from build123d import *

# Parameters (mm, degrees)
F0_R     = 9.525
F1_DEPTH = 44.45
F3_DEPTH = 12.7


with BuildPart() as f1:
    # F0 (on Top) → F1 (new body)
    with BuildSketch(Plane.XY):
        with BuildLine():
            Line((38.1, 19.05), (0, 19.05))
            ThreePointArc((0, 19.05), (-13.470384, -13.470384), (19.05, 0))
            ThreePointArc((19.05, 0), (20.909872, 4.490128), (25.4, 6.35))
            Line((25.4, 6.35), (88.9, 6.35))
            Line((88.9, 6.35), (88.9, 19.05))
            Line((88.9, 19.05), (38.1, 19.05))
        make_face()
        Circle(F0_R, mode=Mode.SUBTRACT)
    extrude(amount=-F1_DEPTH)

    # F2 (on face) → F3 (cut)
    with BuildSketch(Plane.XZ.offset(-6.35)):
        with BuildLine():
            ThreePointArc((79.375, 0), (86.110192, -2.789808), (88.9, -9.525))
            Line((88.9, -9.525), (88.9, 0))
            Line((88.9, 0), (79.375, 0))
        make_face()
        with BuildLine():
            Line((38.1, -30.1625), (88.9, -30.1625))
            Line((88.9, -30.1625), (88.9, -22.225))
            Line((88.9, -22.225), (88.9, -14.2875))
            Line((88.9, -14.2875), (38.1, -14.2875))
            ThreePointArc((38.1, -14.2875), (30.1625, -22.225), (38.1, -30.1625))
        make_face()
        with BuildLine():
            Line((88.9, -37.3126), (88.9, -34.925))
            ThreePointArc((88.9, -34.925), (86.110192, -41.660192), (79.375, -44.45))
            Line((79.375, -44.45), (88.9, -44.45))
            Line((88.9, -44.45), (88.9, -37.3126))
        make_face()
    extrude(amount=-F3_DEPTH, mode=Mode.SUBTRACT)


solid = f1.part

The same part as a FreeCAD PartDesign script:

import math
import FreeCAD as App
import Part
import Sketcher

V = App.Vector
Q = App.Units.Quantity

doc = App.newDocument("Part")
body = doc.addObject("PartDesign::Body", "Body")

sketch1 = doc.addObject("Sketcher::SketchObject", "Sketch")
body.addObject(sketch1)
sketch1.AttachmentSupport = (doc.XY_Plane, [""])
sketch1.MapMode = "FlatFace"
sketch1.addGeometry(Part.ArcOfCircle(Part.Circle(V(0, 0, 0), V(0, 0, 1), 19), math.radians(90), math.radians(360)), False)
sketch1.addGeometry(Part.ArcOfCircle(Part.Circle(V(25, 0, 0), V(0, 0, 1), 6), math.radians(90), math.radians(180)), False)
sketch1.addGeometry(Part.LineSegment(V(25, 6, 0), V(89, 6, 0)), False)
sketch1.addGeometry(Part.LineSegment(V(89, 6, 0), V(89, 19, 0)), False)
sketch1.addGeometry(Part.LineSegment(V(89, 19, 0), V(0, 19, 0)), False)
sketch1.addGeometry(Part.Circle(V(0, 0, 0), V(0, 0, 1), 10), False)
sketch1.addConstraint(Sketcher.Constraint("Tangent", 0, 2, 1, 2))
sketch1.addConstraint(Sketcher.Constraint("Tangent", 1, 1, 2, 1))
sketch1.addConstraint(Sketcher.Constraint("Coincident", 2, 2, 3, 1))
sketch1.addConstraint(Sketcher.Constraint("Coincident", 3, 2, 4, 1))
sketch1.addConstraint(Sketcher.Constraint("Tangent", 4, 2, 0, 1))
sketch1.addConstraint(Sketcher.Constraint("Horizontal", 2))
sketch1.addConstraint(Sketcher.Constraint("Vertical", 3))
sketch1.addConstraint(Sketcher.Constraint("Horizontal", 4))
sketch1.addConstraint(Sketcher.Constraint("Coincident", 0, 3, -1, 1))
sketch1.addConstraint(Sketcher.Constraint("Coincident", 5, 3, -1, 1))
sketch1.addConstraint(Sketcher.Constraint("PointOnObject", 1, 3, -1))
sketch1.addConstraint(Sketcher.Constraint("Diameter", 5, Q("0.75 in")))
sketch1.addConstraint(Sketcher.Constraint("Radius", 0, Q("0.75 in")))
sketch1.addConstraint(Sketcher.Constraint("Radius", 1, Q("0.25 in")))
sketch1.addConstraint(Sketcher.Constraint("DistanceX", 2, 1, 2, 2, Q("2.5 in")))
pad1 = doc.addObject("PartDesign::Pad", "Pad")
body.addObject(pad1)
pad1.Profile = sketch1
pad1.Length = Q("1.75 in")
pad1.Reversed = True

sketch2 = doc.addObject("Sketcher::SketchObject", "Sketch001")
body.addObject(sketch2)
sketch2.AttachmentSupport = (doc.XZ_Plane, [""])
sketch2.MapMode = "FlatFace"
sketch2.AttachmentOffset = App.Placement(V(0, 0, -0.25 * 25.4), App.Rotation())
sketch2.addGeometry(Part.ArcOfCircle(Part.Circle(V(79, -10, 0), V(0, 0, 1), 10), math.radians(0), math.radians(90)), False)
sketch2.addGeometry(Part.LineSegment(V(89, -10, 0), V(89, 0, 0)), False)
sketch2.addGeometry(Part.LineSegment(V(89, 0, 0), V(79, 0, 0)), False)
sketch2.addGeometry(Part.LineSegment(V(38, -30, 0), V(89, -30, 0)), False)
sketch2.addGeometry(Part.LineSegment(V(89, -30, 0), V(89, -14, 0)), False)
sketch2.addGeometry(Part.LineSegment(V(89, -14, 0), V(38, -14, 0)), False)
sketch2.addGeometry(Part.ArcOfCircle(Part.Circle(V(38, -22, 0), V(0, 0, 1), 8), math.radians(90), math.radians(270)), False)
sketch2.addGeometry(Part.ArcOfCircle(Part.Circle(V(79, -35, 0), V(0, 0, 1), 10), math.radians(-90), math.radians(0)), False)
sketch2.addGeometry(Part.LineSegment(V(79, -44, 0), V(89, -44, 0)), False)
sketch2.addGeometry(Part.LineSegment(V(89, -44, 0), V(89, -35, 0)), False)
sketch2.addConstraint(Sketcher.Constraint("Tangent", 0, 1, 1, 1))
sketch2.addConstraint(Sketcher.Constraint("Coincident", 1, 2, 2, 1))
sketch2.addConstraint(Sketcher.Constraint("Tangent", 2, 2, 0, 2))
sketch2.addConstraint(Sketcher.Constraint("Coincident", 3, 2, 4, 1))
sketch2.addConstraint(Sketcher.Constraint("Coincident", 4, 2, 5, 1))
sketch2.addConstraint(Sketcher.Constraint("Tangent", 5, 2, 6, 1))
sketch2.addConstraint(Sketcher.Constraint("Tangent", 6, 2, 3, 1))
sketch2.addConstraint(Sketcher.Constraint("Tangent", 7, 1, 8, 1))
sketch2.addConstraint(Sketcher.Constraint("Coincident", 8, 2, 9, 1))
sketch2.addConstraint(Sketcher.Constraint("Tangent", 9, 2, 7, 2))
sketch2.addConstraint(Sketcher.Constraint("Vertical", 1))
sketch2.addConstraint(Sketcher.Constraint("Horizontal", 2))
sketch2.addConstraint(Sketcher.Constraint("Horizontal", 3))
sketch2.addConstraint(Sketcher.Constraint("Vertical", 4))
sketch2.addConstraint(Sketcher.Constraint("Horizontal", 5))
sketch2.addConstraint(Sketcher.Constraint("Horizontal", 8))
sketch2.addConstraint(Sketcher.Constraint("Vertical", 9))
sketch2.addConstraint(Sketcher.Constraint("Equal", 0, 7))
sketch2.addConstraint(Sketcher.Constraint("PointOnObject", 1, 2, -1))
sketch2.addConstraint(Sketcher.Constraint("Vertical", 0, 3, 7, 3))
sketch2.addConstraint(Sketcher.Constraint("Vertical", 1, 2, 3, 2))
sketch2.addConstraint(Sketcher.Constraint("DistanceX", 3, 1, 3, 2, Q("2 in")))
sketch2.addConstraint(Sketcher.Constraint("Radius", 0, Q("0.375 in")))
sketch2.addConstraint(Sketcher.Constraint("Radius", 6, Q("0.3125 in")))
sketch2.addConstraint(Sketcher.Constraint("DistanceY", 7, 3, 0, 3, Q("1 in")))
sketch2.addConstraint(Sketcher.Constraint("DistanceX", -1, 1, 6, 3, Q("1.5 in")))
sketch2.addConstraint(Sketcher.Constraint("DistanceY", 6, 3, 0, 3, Q("0.5 in")))
pocket1 = doc.addObject("PartDesign::Pocket", "Pocket")
body.addObject(pocket1)
pocket1.Profile = sketch2
pocket1.Length = Q("0.5 in")

doc.recompute()
